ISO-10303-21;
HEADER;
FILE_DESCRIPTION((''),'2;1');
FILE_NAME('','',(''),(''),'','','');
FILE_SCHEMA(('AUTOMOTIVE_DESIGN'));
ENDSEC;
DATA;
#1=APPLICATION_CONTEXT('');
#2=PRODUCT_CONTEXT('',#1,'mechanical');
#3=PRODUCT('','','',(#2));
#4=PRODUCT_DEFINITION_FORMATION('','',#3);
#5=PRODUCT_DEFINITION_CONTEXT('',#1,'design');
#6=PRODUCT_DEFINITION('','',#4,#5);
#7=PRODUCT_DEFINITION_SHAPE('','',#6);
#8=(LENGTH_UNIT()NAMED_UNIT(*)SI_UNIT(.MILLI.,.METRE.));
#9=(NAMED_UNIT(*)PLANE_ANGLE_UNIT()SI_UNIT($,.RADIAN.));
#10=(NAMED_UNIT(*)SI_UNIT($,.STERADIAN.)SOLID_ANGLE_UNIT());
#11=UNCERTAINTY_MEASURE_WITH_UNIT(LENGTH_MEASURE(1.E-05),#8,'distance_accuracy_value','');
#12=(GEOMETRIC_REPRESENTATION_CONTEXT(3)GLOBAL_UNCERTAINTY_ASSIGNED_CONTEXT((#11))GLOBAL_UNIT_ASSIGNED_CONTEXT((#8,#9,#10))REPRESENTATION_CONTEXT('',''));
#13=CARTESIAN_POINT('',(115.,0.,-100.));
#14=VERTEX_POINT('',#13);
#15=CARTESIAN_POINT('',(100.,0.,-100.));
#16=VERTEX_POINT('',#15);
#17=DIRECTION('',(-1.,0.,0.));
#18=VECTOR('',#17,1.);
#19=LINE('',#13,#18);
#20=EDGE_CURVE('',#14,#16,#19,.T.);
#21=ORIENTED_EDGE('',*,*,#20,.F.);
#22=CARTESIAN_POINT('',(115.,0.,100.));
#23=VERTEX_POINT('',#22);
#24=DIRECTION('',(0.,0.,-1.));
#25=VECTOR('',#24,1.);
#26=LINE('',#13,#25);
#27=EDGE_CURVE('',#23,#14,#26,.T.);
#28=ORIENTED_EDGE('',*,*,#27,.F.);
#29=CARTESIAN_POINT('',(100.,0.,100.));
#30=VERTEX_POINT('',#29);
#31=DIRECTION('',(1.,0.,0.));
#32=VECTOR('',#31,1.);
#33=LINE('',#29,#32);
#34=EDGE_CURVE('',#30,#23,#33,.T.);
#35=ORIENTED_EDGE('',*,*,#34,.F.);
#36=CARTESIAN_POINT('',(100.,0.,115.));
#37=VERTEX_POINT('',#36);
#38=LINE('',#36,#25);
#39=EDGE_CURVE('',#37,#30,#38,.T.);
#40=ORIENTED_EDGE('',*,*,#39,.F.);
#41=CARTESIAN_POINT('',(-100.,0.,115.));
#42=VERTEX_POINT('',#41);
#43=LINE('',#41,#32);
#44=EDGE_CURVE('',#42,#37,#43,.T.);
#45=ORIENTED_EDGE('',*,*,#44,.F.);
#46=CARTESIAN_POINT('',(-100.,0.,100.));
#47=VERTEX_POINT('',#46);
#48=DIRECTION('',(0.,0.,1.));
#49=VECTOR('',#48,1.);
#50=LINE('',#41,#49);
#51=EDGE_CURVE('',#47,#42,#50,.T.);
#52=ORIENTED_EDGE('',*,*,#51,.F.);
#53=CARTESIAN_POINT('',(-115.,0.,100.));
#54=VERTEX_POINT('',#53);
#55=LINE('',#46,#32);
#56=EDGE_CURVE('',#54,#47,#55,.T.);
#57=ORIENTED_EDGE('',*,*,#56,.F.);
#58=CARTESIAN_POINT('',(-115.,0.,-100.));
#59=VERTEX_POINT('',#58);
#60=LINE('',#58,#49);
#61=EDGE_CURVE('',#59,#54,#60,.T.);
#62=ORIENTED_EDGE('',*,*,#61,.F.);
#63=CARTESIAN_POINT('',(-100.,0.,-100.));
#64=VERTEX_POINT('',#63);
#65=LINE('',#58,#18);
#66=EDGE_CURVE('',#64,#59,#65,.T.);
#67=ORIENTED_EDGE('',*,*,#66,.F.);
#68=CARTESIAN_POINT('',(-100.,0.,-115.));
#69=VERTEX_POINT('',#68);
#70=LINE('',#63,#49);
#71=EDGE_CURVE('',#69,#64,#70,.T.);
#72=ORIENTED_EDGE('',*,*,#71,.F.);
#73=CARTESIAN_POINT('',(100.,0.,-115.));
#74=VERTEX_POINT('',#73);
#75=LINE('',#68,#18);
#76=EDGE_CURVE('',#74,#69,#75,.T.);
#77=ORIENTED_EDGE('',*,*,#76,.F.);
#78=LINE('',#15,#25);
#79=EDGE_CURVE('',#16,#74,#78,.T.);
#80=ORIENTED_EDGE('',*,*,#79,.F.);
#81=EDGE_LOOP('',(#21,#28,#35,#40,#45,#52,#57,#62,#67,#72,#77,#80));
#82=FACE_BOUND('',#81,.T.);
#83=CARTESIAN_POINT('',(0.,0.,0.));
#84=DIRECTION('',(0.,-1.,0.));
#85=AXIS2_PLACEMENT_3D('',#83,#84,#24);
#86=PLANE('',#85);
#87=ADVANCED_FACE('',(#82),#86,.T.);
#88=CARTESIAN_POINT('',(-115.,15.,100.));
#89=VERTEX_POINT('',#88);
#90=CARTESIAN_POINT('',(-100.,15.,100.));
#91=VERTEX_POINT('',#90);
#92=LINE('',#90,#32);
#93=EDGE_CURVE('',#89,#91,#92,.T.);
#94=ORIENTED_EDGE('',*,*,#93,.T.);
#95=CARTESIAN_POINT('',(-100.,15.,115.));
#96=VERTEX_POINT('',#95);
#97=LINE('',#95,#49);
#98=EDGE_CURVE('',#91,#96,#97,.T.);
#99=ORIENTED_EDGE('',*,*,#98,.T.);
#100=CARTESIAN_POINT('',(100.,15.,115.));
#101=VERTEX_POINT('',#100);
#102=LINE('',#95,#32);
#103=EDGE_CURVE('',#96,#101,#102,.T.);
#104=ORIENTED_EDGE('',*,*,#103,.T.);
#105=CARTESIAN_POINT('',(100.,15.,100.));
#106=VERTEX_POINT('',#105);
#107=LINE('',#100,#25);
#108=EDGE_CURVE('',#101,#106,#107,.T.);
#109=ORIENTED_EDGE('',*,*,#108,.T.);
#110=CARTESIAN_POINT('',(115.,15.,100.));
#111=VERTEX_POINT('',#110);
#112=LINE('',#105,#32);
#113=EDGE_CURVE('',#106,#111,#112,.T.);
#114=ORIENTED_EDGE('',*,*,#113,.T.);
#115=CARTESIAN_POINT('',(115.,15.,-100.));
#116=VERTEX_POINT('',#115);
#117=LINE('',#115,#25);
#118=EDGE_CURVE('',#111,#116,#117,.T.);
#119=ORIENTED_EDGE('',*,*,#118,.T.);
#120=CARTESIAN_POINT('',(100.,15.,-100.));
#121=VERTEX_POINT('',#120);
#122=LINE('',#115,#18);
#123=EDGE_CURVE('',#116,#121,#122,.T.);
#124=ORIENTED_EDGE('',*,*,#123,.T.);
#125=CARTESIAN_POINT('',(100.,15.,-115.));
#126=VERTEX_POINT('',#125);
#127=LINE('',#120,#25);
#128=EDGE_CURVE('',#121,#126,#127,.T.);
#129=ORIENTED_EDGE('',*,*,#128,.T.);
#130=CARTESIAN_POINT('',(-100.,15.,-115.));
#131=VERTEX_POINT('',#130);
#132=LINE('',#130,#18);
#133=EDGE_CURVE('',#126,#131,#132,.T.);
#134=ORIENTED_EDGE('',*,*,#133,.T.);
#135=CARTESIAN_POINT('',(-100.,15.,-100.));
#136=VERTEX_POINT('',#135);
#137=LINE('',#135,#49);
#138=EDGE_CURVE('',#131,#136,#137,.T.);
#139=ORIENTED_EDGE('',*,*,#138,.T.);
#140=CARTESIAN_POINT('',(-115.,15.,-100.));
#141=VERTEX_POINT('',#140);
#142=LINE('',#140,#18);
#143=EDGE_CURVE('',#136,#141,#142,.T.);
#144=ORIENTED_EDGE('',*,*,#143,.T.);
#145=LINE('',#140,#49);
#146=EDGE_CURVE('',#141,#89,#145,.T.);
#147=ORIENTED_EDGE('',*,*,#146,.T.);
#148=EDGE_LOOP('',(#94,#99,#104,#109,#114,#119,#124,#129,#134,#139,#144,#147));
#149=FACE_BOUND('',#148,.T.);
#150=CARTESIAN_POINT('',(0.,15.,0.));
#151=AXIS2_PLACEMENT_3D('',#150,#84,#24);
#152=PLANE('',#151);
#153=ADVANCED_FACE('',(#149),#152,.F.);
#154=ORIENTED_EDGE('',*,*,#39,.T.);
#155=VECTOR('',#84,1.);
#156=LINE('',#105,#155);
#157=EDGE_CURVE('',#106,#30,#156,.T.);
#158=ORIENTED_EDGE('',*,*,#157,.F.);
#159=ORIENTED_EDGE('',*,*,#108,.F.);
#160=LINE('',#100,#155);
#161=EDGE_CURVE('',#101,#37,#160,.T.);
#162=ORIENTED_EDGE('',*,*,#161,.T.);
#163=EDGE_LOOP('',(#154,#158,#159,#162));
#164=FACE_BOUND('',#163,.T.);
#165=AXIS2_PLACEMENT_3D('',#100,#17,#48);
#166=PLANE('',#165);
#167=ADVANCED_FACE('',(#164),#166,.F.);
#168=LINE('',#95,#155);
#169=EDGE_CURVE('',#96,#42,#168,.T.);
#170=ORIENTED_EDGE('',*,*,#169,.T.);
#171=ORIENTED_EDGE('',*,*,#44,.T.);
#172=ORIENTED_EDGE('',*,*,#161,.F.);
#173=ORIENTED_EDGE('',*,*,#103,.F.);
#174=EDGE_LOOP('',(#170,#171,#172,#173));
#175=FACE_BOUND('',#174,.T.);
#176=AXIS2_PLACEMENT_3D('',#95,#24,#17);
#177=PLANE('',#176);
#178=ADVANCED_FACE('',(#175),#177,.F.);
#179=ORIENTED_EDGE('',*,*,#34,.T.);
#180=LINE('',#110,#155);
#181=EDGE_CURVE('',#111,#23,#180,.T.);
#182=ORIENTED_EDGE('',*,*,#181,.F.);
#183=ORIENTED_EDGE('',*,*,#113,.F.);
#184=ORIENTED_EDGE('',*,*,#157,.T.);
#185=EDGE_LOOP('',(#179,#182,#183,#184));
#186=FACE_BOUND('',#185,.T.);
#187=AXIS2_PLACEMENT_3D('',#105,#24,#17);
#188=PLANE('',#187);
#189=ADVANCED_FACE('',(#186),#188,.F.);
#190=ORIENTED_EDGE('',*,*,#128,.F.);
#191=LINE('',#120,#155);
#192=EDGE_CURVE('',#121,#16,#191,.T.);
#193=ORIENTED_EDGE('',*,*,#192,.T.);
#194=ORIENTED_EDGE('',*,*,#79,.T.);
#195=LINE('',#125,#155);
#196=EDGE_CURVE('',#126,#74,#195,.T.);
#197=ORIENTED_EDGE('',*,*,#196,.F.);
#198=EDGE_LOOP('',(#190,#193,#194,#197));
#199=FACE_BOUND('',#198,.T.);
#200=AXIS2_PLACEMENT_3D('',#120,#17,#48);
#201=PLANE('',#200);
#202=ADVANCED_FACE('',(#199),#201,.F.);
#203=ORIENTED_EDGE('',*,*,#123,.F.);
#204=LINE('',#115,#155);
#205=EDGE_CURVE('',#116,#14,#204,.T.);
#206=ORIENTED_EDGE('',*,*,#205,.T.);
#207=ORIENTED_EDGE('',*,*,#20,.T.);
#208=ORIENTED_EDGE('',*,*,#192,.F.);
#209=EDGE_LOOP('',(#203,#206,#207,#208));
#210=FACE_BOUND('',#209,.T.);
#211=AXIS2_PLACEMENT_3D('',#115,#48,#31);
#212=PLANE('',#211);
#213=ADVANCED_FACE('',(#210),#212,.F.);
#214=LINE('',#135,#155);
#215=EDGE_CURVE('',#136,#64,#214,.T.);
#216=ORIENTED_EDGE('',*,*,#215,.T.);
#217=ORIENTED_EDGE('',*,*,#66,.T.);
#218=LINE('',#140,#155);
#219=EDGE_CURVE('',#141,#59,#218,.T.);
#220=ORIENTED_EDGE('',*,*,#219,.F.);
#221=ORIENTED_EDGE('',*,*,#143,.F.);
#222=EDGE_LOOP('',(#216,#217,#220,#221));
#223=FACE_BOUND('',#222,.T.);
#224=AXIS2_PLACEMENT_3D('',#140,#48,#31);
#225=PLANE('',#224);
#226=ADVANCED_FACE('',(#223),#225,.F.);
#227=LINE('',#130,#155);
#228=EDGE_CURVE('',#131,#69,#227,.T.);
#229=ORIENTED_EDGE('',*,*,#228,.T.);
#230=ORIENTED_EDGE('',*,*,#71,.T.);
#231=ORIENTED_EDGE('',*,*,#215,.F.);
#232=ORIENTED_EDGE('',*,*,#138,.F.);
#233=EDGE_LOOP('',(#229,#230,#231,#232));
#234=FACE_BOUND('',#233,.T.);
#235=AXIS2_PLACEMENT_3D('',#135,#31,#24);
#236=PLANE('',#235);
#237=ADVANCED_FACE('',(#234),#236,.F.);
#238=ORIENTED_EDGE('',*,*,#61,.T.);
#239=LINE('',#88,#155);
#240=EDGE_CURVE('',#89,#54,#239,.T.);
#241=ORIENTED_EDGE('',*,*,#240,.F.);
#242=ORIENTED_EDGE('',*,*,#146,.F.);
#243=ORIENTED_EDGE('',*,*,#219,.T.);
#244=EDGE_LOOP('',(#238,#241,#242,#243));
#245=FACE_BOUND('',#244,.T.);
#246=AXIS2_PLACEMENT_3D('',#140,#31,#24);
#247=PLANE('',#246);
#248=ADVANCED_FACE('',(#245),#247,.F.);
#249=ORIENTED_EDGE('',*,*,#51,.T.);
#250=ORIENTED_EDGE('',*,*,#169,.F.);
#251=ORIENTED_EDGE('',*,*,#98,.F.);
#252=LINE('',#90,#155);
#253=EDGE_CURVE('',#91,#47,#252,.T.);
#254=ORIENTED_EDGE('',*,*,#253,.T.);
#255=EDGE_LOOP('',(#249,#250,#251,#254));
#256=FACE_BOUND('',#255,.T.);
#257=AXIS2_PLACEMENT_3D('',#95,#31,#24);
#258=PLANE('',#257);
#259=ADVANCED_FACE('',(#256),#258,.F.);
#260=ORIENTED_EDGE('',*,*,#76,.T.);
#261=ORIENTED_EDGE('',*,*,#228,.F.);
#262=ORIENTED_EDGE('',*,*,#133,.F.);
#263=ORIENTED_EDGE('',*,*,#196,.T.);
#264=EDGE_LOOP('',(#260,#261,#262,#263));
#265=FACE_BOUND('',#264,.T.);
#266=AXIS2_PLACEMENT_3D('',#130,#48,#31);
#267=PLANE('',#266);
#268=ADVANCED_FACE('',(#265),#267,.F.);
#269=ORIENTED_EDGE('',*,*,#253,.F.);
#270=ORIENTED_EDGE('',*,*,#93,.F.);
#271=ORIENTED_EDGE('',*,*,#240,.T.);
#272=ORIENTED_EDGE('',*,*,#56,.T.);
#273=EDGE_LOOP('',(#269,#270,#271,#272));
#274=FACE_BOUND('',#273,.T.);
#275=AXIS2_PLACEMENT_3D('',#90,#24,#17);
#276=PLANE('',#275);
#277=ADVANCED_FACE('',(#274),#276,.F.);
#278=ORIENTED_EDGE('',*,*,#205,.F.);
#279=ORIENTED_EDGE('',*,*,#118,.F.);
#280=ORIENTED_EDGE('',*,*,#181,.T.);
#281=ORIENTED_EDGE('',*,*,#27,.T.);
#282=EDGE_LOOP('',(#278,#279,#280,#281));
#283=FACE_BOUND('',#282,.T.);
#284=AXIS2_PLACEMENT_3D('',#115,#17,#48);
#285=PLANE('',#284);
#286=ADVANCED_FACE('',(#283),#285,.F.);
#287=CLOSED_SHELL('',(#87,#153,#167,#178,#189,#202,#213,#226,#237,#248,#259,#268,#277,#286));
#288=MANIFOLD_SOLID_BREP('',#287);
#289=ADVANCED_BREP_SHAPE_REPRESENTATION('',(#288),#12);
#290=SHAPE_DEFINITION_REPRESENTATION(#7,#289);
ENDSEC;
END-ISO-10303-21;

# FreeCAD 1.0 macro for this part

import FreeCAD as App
import Part
import Sketcher

V = App.Vector


def add_polygon(sketch, points):
    """Adds a closed chain of lines whose ends are joined by coincident constraints."""
    first, n = sketch.GeometryCount, len(points)
    for a, b in zip(points, points[1:] + points[:1]):
        sketch.addGeometry(Part.LineSegment(App.Vector(*a, 0), App.Vector(*b, 0)), False)
    for i in range(n):
        sketch.addConstraint(Sketcher.Constraint("Coincident", first + i, 2, first + (i + 1) % n, 1))

doc = App.newDocument("Part")
body = doc.addObject("PartDesign::Body", "Body")

# Sketch on XZ plane
sketch1 = body.newObject("Sketcher::SketchObject", "Sketch")
sketch1.AttachmentSupport = (doc.getObject("XZ_Plane"), [""])
sketch1.MapMode = "FlatFace"
add_polygon(sketch1, [(-100, -100), (-115, -100), (-115, 100), (-100, 100), (-100, 115), (100, 115), (100, 100), (115, 100), (115, -100), (100, -100), (100, -115), (-100, -115)])  # lines 0-11
sketch1.addConstraint([
    Sketcher.Constraint("Horizontal", 0),
    Sketcher.Constraint("Vertical", 1),
    Sketcher.Constraint("Horizontal", 2),
    Sketcher.Constraint("Vertical", 3),
    Sketcher.Constraint("Horizontal", 4),
    Sketcher.Constraint("Vertical", 5),
    Sketcher.Constraint("Horizontal", 6),
    Sketcher.Constraint("Vertical", 7),
    Sketcher.Constraint("Horizontal", 8),
    Sketcher.Constraint("Vertical", 9),
    Sketcher.Constraint("Horizontal", 10),
    Sketcher.Constraint("Vertical", 11),
    Sketcher.Constraint("Symmetric", 0, 2, 6, 2, -1, 1),
    Sketcher.Constraint("Symmetric", 2, 2, 8, 2, -1, 1),
    Sketcher.Constraint("Symmetric", 4, 2, 10, 2, -1, 1),
    Sketcher.Constraint("Symmetric", 2, 2, 5, 2, -2),
    Sketcher.Constraint("Equal", 10, 1),
    Sketcher.Constraint("Equal", 8, 3),
    Sketcher.Constraint("DistanceX", 0, 2, 0, 1, 15.0),
    Sketcher.Constraint("DistanceX", 4, 1, 4, 2, 200.0),
])
pad1 = body.newObject("PartDesign::Pad", "Pad")
pad1.Profile = sketch1
pad1.Length = 15
pad1.Reversed = True

doc.recompute()
